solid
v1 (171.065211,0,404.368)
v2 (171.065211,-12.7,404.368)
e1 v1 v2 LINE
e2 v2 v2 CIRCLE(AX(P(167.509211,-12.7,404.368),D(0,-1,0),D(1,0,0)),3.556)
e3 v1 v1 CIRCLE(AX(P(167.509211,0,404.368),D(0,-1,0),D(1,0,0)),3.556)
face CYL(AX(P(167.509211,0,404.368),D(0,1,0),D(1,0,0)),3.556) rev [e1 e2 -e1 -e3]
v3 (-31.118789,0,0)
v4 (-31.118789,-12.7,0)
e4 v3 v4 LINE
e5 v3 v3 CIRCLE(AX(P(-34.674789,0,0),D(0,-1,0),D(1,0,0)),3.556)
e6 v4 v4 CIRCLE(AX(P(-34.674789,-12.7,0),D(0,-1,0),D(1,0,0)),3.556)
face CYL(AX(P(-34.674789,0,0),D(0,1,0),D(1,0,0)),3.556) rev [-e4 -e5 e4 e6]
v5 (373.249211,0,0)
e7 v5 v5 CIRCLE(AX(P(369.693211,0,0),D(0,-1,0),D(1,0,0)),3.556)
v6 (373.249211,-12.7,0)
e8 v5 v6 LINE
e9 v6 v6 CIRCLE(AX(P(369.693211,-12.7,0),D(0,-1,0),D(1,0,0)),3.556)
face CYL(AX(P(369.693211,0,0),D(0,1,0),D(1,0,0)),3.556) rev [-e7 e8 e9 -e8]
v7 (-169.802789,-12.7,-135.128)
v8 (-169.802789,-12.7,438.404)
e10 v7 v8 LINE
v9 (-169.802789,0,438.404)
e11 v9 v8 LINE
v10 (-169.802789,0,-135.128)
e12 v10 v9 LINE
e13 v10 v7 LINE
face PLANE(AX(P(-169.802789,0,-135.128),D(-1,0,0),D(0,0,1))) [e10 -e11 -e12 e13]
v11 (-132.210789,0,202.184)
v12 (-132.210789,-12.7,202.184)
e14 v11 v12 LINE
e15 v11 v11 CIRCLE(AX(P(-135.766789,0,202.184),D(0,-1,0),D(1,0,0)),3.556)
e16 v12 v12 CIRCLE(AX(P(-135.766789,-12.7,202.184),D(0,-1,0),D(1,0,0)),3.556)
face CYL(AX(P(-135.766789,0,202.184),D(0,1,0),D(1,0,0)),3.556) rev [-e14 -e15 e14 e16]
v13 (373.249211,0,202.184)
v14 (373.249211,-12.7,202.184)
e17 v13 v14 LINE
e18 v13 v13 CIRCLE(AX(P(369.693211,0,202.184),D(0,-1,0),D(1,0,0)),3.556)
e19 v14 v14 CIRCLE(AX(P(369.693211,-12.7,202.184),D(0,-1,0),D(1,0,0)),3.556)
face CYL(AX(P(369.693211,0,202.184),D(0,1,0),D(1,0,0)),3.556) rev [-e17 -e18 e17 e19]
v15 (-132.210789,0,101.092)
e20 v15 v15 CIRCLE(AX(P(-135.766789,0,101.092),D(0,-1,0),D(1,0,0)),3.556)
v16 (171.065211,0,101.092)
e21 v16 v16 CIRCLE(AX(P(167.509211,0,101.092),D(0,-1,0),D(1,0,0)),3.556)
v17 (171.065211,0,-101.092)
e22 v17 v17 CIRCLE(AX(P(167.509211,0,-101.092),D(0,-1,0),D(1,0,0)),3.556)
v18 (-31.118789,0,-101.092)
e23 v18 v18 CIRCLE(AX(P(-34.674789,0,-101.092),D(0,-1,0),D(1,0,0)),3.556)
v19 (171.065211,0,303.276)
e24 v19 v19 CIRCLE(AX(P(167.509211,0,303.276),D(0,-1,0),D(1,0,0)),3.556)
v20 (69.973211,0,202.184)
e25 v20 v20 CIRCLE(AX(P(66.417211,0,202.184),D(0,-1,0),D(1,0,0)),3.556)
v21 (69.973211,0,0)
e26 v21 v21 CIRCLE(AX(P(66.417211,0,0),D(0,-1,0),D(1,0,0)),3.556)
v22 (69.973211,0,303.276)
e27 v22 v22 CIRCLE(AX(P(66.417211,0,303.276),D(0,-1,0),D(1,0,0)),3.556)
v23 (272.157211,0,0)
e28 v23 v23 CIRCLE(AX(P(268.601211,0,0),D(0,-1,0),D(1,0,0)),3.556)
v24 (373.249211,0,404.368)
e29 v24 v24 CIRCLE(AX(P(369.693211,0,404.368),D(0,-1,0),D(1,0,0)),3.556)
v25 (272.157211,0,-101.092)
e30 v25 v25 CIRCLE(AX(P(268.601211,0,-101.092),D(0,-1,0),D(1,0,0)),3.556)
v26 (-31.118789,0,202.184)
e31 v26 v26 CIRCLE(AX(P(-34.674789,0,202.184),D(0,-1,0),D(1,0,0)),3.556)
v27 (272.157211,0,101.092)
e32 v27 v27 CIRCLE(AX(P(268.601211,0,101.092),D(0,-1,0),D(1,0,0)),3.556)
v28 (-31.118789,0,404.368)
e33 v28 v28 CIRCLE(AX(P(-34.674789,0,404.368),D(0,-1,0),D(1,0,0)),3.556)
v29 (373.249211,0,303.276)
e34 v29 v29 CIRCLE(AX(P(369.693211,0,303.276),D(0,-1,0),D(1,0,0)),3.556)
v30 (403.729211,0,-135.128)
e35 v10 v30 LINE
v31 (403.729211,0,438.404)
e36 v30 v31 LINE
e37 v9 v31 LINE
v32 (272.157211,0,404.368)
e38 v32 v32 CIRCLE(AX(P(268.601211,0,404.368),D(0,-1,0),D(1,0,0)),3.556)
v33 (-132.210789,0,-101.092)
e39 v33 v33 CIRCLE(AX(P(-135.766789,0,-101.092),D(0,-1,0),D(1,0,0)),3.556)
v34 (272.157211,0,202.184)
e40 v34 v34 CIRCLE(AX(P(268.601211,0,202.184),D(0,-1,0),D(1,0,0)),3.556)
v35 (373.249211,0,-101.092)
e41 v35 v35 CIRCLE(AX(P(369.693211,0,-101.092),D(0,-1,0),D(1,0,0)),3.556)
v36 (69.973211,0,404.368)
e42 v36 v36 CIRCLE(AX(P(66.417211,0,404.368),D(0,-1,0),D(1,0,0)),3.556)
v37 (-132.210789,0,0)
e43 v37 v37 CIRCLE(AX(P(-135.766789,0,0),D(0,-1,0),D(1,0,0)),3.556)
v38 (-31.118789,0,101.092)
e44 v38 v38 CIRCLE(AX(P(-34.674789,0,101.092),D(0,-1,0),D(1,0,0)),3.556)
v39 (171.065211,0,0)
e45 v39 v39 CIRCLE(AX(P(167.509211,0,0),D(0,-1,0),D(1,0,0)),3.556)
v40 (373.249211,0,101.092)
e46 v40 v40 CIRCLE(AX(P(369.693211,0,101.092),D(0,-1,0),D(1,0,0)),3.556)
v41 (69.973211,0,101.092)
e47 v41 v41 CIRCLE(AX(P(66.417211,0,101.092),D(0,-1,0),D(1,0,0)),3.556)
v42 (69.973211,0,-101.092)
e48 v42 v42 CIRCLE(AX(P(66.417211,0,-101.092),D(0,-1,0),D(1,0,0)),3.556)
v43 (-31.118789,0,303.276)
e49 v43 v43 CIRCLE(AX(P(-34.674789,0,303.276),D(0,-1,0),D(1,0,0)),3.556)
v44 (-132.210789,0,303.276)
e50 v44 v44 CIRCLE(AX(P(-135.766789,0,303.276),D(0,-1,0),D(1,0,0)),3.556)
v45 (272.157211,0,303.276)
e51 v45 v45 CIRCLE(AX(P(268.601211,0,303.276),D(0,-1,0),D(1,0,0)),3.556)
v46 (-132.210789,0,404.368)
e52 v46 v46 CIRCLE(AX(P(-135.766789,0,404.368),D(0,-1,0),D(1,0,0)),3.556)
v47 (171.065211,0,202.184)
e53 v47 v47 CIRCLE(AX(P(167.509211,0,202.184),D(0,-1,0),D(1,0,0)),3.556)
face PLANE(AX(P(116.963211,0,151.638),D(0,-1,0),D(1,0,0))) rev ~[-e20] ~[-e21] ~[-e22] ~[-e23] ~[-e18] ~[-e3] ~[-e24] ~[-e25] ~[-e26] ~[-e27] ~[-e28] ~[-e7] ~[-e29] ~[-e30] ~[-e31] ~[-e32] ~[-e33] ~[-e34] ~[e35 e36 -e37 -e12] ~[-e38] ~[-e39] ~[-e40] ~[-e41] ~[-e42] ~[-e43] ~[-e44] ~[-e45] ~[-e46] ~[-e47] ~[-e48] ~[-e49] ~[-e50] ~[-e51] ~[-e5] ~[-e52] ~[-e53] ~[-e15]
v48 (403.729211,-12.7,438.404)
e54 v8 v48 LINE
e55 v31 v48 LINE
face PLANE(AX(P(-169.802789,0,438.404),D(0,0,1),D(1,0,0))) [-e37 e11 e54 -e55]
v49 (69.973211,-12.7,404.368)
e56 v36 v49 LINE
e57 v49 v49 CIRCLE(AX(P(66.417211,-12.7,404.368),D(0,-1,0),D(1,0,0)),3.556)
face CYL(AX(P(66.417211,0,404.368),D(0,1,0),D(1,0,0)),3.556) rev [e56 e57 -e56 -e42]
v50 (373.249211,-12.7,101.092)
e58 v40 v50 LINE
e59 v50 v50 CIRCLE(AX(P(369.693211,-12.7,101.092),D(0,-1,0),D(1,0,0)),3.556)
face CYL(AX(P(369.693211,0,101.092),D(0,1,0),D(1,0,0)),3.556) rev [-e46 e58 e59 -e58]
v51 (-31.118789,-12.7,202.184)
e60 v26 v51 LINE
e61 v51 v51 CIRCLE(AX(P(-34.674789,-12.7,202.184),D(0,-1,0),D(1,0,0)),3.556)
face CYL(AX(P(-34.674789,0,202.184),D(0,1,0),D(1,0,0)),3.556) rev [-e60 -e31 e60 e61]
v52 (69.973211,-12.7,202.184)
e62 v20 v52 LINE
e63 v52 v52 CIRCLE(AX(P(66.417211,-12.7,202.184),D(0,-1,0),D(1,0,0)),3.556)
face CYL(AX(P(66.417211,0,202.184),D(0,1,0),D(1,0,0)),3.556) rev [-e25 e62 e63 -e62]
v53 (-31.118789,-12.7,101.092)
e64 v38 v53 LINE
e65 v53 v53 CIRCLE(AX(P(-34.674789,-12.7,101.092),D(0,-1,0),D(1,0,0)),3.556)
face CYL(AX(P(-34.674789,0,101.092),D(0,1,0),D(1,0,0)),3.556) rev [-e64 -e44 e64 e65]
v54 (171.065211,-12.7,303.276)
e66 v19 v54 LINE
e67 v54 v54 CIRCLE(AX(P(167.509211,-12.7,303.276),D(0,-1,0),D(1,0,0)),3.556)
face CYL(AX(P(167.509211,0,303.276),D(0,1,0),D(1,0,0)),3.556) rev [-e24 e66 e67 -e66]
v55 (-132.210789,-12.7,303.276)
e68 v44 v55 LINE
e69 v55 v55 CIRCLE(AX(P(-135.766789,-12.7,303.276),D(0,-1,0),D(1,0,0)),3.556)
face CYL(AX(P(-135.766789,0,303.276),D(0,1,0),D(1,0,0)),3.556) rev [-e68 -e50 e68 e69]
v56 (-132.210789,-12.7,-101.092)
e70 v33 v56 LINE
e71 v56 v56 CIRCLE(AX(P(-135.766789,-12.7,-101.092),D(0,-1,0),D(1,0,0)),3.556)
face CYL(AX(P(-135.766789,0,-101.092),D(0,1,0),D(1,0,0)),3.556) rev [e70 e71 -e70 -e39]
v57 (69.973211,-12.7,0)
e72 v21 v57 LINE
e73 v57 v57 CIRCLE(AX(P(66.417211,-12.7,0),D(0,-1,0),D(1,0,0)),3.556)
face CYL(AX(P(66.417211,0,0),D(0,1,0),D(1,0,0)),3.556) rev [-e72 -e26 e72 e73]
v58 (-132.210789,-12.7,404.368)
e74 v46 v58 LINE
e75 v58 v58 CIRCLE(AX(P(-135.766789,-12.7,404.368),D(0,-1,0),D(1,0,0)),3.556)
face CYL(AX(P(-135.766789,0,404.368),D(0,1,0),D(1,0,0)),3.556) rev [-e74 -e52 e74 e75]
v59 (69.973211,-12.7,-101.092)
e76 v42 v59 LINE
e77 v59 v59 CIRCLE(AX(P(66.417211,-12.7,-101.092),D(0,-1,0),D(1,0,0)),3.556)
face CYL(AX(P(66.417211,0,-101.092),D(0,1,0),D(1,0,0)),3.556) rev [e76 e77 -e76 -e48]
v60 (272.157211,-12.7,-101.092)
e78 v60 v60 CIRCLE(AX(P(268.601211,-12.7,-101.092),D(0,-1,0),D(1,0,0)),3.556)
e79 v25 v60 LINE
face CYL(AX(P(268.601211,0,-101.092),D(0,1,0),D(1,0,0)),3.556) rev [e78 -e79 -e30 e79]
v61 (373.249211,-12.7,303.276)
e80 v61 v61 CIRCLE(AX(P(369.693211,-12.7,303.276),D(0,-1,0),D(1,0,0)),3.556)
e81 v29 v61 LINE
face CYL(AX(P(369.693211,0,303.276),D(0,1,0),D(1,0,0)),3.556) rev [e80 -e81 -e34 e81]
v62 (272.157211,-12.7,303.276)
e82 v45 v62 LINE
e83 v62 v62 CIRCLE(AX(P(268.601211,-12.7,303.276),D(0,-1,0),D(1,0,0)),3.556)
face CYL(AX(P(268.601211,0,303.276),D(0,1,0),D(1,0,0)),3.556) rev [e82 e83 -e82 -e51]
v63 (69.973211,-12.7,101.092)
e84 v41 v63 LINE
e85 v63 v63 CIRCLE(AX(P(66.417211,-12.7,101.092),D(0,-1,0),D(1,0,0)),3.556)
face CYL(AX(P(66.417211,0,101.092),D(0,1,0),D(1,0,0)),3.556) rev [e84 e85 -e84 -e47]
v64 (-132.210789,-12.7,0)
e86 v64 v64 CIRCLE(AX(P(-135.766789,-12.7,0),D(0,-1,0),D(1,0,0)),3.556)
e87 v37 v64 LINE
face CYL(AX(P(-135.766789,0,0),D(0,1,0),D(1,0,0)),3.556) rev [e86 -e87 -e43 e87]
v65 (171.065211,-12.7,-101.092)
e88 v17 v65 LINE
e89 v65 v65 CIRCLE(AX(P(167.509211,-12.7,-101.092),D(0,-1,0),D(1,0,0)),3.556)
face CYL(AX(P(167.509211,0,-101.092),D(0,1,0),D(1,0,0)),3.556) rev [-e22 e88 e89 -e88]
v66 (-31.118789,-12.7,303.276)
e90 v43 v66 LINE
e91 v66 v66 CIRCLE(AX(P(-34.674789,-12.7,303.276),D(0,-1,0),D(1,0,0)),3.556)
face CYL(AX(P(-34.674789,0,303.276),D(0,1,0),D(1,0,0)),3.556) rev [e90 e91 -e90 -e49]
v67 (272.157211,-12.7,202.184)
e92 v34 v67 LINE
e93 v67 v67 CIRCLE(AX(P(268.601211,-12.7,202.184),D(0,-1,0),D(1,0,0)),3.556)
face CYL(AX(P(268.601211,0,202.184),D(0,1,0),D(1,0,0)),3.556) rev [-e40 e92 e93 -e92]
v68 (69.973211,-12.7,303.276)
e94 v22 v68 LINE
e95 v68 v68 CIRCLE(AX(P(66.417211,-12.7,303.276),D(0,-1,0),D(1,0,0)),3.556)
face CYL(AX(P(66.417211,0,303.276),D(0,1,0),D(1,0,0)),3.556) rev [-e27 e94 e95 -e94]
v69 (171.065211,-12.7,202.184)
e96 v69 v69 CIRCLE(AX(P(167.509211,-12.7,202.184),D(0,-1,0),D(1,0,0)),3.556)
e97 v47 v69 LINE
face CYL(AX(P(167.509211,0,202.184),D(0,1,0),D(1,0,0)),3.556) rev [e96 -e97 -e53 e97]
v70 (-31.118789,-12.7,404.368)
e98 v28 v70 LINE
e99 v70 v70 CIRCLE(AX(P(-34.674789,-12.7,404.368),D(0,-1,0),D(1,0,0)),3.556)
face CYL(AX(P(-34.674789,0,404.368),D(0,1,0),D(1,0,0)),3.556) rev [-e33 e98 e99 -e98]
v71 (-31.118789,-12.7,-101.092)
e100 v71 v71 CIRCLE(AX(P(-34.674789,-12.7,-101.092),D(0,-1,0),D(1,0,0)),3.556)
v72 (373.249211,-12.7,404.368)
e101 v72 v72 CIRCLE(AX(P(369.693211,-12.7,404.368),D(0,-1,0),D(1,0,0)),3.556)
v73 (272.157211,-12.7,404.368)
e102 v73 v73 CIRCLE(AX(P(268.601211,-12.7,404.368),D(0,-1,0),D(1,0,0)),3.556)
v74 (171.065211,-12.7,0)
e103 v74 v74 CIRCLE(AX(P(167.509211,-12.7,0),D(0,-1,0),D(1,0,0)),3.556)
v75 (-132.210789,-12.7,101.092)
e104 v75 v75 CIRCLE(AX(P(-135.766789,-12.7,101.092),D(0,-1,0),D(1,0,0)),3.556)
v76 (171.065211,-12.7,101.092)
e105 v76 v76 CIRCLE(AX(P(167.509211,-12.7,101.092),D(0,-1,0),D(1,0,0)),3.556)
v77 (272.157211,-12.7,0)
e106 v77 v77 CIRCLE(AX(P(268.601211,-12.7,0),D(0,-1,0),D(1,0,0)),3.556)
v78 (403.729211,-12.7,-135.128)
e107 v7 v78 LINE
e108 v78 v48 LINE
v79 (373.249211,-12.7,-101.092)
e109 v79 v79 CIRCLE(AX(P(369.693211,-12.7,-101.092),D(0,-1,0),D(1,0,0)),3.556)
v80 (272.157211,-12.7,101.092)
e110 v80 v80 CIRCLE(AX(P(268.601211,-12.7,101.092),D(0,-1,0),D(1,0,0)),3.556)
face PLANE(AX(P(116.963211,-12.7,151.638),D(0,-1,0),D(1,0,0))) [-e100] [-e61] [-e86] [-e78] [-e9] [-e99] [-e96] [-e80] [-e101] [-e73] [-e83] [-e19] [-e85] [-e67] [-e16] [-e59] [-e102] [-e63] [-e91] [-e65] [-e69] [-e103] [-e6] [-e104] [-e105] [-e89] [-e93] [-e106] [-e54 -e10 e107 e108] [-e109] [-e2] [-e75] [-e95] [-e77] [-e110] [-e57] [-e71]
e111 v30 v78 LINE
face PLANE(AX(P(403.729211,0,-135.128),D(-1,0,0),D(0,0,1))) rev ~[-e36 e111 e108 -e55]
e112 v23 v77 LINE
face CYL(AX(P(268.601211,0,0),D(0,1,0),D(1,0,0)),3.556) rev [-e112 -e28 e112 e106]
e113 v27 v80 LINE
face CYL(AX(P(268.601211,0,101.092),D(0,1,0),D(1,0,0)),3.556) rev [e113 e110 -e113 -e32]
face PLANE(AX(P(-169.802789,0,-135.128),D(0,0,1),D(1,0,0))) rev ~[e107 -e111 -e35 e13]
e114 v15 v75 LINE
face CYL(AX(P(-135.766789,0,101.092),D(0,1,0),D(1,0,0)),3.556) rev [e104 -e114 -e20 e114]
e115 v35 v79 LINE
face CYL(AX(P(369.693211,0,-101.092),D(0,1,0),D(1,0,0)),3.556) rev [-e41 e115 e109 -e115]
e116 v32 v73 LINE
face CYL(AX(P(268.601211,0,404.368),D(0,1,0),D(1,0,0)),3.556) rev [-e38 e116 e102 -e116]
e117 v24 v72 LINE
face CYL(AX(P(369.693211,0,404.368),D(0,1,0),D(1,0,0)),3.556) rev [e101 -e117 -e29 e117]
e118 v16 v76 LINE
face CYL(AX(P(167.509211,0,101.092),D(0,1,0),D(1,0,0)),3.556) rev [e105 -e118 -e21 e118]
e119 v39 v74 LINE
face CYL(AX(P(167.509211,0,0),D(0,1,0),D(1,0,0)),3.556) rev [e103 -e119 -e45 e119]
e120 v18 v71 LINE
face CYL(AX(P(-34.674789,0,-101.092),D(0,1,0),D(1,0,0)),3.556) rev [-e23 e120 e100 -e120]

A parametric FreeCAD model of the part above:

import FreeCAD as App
import Part
import Sketcher
Q = App.Units.Quantity

doc = App.newDocument("Part")
body = doc.addObject("PartDesign::Body", "Body")

# Sketch on XZ plane
sketch1 = body.newObject("Sketcher::SketchObject", "Sketch")
sketch1.AttachmentSupport = (doc.getObject("XZ_Plane"), [""])
sketch1.MapMode = "FlatFace"
sketch1.addGeometry([
    Part.LineSegment(App.Vector(-169.8, 438.4, 0), App.Vector(-169.8, -135.1, 0)),  # 0
    Part.LineSegment(App.Vector(-169.8, -135.1, 0), App.Vector(403.7, -135.1, 0)),  # 1
    Part.LineSegment(App.Vector(403.7, -135.1, 0), App.Vector(403.7, 438.4, 0)),  # 2
    Part.LineSegment(App.Vector(403.7, 438.4, 0), App.Vector(-169.8, 438.4, 0)),  # 3
    Part.Circle(App.Vector(-135.8, -101.1, 0), App.Vector(0, 0, 1), 3.6),  # 4
    Part.Circle(App.Vector(-34.7, -101.1, 0), App.Vector(0, 0, 1), 3.6),  # 5
    Part.Circle(App.Vector(-135.8, 0, 0), App.Vector(0, 0, 1), 3.6),  # 6
    Part.Circle(App.Vector(-34.7, 0, 0), App.Vector(0, 0, 1), 3.6),  # 7
    Part.Circle(App.Vector(66.4, -101.1, 0), App.Vector(0, 0, 1), 3.6),  # 8
    Part.Circle(App.Vector(66.4, 0, 0), App.Vector(0, 0, 1), 3.6),  # 9
    Part.Circle(App.Vector(-135.8, 101.1, 0), App.Vector(0, 0, 1), 3.6),  # 10
    Part.Circle(App.Vector(-34.7, 101.1, 0), App.Vector(0, 0, 1), 3.6),  # 11
    Part.Circle(App.Vector(66.4, 101.1, 0), App.Vector(0, 0, 1), 3.6),  # 12
    Part.Circle(App.Vector(167.5, -101.1, 0), App.Vector(0, 0, 1), 3.6),  # 13
    Part.Circle(App.Vector(167.5, 0, 0), App.Vector(0, 0, 1), 3.6),  # 14
    Part.Circle(App.Vector(268.6, -101.1, 0), App.Vector(0, 0, 1), 3.6),  # 15
    Part.Circle(App.Vector(369.7, -101.1, 0), App.Vector(0, 0, 1), 3.6),  # 16
    Part.Circle(App.Vector(268.6, 0, 0), App.Vector(0, 0, 1), 3.6),  # 17
    Part.Circle(App.Vector(369.7, 0, 0), App.Vector(0, 0, 1), 3.6),  # 18
    Part.Circle(App.Vector(167.5, 101.1, 0), App.Vector(0, 0, 1), 3.6),  # 19
    Part.Circle(App.Vector(268.6, 101.1, 0), App.Vector(0, 0, 1), 3.6),  # 20
    Part.Circle(App.Vector(369.7, 101.1, 0), App.Vector(0, 0, 1), 3.6),  # 21
    Part.Circle(App.Vector(-135.8, 202.2, 0), App.Vector(0, 0, 1), 3.6),  # 22
    Part.Circle(App.Vector(-34.7, 202.2, 0), App.Vector(0, 0, 1), 3.6),  # 23
    Part.Circle(App.Vector(66.4, 202.2, 0), App.Vector(0, 0, 1), 3.6),  # 24
    Part.Circle(App.Vector(-135.8, 303.3, 0), App.Vector(0, 0, 1), 3.6),  # 25
    Part.Circle(App.Vector(-34.7, 303.3, 0), App.Vector(0, 0, 1), 3.6),  # 26
    Part.Circle(App.Vector(-135.8, 404.4, 0), App.Vector(0, 0, 1), 3.6),  # 27
    Part.Circle(App.Vector(-34.7, 404.4, 0), App.Vector(0, 0, 1), 3.6),  # 28
    Part.Circle(App.Vector(66.4, 303.3, 0), App.Vector(0, 0, 1), 3.6),  # 29
    Part.Circle(App.Vector(66.4, 404.4, 0), App.Vector(0, 0, 1), 3.6),  # 30
    Part.Circle(App.Vector(167.5, 202.2, 0), App.Vector(0, 0, 1), 3.6),  # 31
    Part.Circle(App.Vector(268.6, 202.2, 0), App.Vector(0, 0, 1), 3.6),  # 32
    Part.Circle(App.Vector(369.7, 202.2, 0), App.Vector(0, 0, 1), 3.6),  # 33
    Part.Circle(App.Vector(167.5, 303.3, 0), App.Vector(0, 0, 1), 3.6),  # 34
    Part.Circle(App.Vector(167.5, 404.4, 0), App.Vector(0, 0, 1), 3.6),  # 35
    Part.Circle(App.Vector(268.6, 303.3, 0), App.Vector(0, 0, 1), 3.6),  # 36
    Part.Circle(App.Vector(369.7, 303.3, 0), App.Vector(0, 0, 1), 3.6),  # 37
    Part.Circle(App.Vector(268.6, 404.4, 0), App.Vector(0, 0, 1), 3.6),  # 38
    Part.Circle(App.Vector(369.7, 404.4, 0), App.Vector(0, 0, 1), 3.6),  # 39
], False)
sketch1.addConstraint([
    Sketcher.Constraint("Coincident", 0, 2, 1, 1),
    Sketcher.Constraint("Coincident", 1, 2, 2, 1),
    Sketcher.Constraint("Coincident", 2, 2, 3, 1),
    Sketcher.Constraint("Coincident", 3, 2, 0, 1),
    Sketcher.Constraint("Vertical", 0),
    Sketcher.Constraint("Horizontal", 1),
    Sketcher.Constraint("Vertical", 2),
    Sketcher.Constraint("Horizontal", 3),
    Sketcher.Constraint("Equal", 4, 5),
    Sketcher.Constraint("Equal", 5, 6),
    Sketcher.Constraint("Equal", 6, 7),
    Sketcher.Constraint("Equal", 7, 8),
    Sketcher.Constraint("Equal", 8, 9),
    Sketcher.Constraint("Equal", 9, 10),
    Sketcher.Constraint("Equal", 10, 11),
    Sketcher.Constraint("Equal", 11, 12),
    Sketcher.Constraint("Equal", 12, 13),
    Sketcher.Constraint("Equal", 13, 14),
    Sketcher.Constraint("Equal", 14, 15),
    Sketcher.Constraint("Equal", 15, 16),
    Sketcher.Constraint("Equal", 16, 17),
    Sketcher.Constraint("Equal", 17, 18),
    Sketcher.Constraint("Equal", 18, 19),
    Sketcher.Constraint("Equal", 19, 20),
    Sketcher.Constraint("Equal", 20, 21),
    Sketcher.Constraint("Equal", 21, 22),
    Sketcher.Constraint("Equal", 22, 23),
    Sketcher.Constraint("Equal", 23, 24),
    Sketcher.Constraint("Equal", 24, 25),
    Sketcher.Constraint("Equal", 25, 26),
    Sketcher.Constraint("Equal", 26, 27),
    Sketcher.Constraint("Equal", 27, 28),
    Sketcher.Constraint("Equal", 28, 29),
    Sketcher.Constraint("Equal", 29, 30),
    Sketcher.Constraint("Equal", 30, 31),
    Sketcher.Constraint("Equal", 31, 32),
    Sketcher.Constraint("Equal", 32, 33),
    Sketcher.Constraint("Equal", 33, 34),
    Sketcher.Constraint("Equal", 34, 35),
    Sketcher.Constraint("Equal", 35, 36),
    Sketcher.Constraint("Equal", 36, 37),
    Sketcher.Constraint("Equal", 37, 38),
    Sketcher.Constraint("Equal", 38, 39),
    Sketcher.Constraint("Symmetric", 4, 3, 10, 3, -1),
    Sketcher.Constraint("Symmetric", 5, 3, 11, 3, -1),
    Sketcher.Constraint("Symmetric", 8, 3, 12, 3, -1),
    Sketcher.Constraint("Symmetric", 13, 3, 19, 3, -1),
    Sketcher.Constraint("Symmetric", 15, 3, 20, 3, -1),
    Sketcher.Constraint("Symmetric", 16, 3, 21, 3, -1),
    Sketcher.Constraint("PointOnObject", 6, 3, -1),
    Sketcher.Constraint("PointOnObject", 7, 3, -1),
    Sketcher.Constraint("PointOnObject", 9, 3, -1),
    Sketcher.Constraint("PointOnObject", 14, 3, -1),
    Sketcher.Constraint("PointOnObject", 17, 3, -1),
    Sketcher.Constraint("PointOnObject", 18, 3, -1),
    Sketcher.Constraint("Horizontal", 4, 3, 5, 3),
    Sketcher.Constraint("Horizontal", 5, 3, 8, 3),
    Sketcher.Constraint("Horizontal", 8, 3, 13, 3),
    Sketcher.Constraint("Horizontal", 13, 3, 15, 3),
    Sketcher.Constraint("Horizontal", 15, 3, 16, 3),
    Sketcher.Constraint("Horizontal", 22, 3, 23, 3),
    Sketcher.Constraint("Horizontal", 23, 3, 24, 3),
    Sketcher.Constraint("Horizontal", 25, 3, 26, 3),
    Sketcher.Constraint("Horizontal", 27, 3, 28, 3),
    Sketcher.Constraint("Horizontal", 26, 3, 29, 3),
    Sketcher.Constraint("Horizontal", 28, 3, 30, 3),
    Sketcher.Constraint("Horizontal", 24, 3, 31, 3),
    Sketcher.Constraint("Horizontal", 31, 3, 32, 3),
    Sketcher.Constraint("Horizontal", 32, 3, 33, 3),
    Sketcher.Constraint("Horizontal", 29, 3, 34, 3),
    Sketcher.Constraint("Horizontal", 30, 3, 35, 3),
    Sketcher.Constraint("Horizontal", 34, 3, 36, 3),
    Sketcher.Constraint("Horizontal", 36, 3, 37, 3),
    Sketcher.Constraint("Horizontal", 35, 3, 38, 3),
    Sketcher.Constraint("Horizontal", 38, 3, 39, 3),
    Sketcher.Constraint("Vertical", 4, 3, 6, 3),
    Sketcher.Constraint("Vertical", 5, 3, 7, 3),
    Sketcher.Constraint("Vertical", 8, 3, 9, 3),
    Sketcher.Constraint("Vertical", 13, 3, 14, 3),
    Sketcher.Constraint("Vertical", 15, 3, 17, 3),
    Sketcher.Constraint("Vertical", 16, 3, 18, 3),
    Sketcher.Constraint("Vertical", 10, 3, 22, 3),
    Sketcher.Constraint("Vertical", 11, 3, 23, 3),
    Sketcher.Constraint("Vertical", 12, 3, 24, 3),
    Sketcher.Constraint("Vertical", 22, 3, 25, 3),
    Sketcher.Constraint("Vertical", 23, 3, 26, 3),
    Sketcher.Constraint("Vertical", 25, 3, 27, 3),
    Sketcher.Constraint("Vertical", 26, 3, 28, 3),
    Sketcher.Constraint("Vertical", 24, 3, 29, 3),
    Sketcher.Constraint("Vertical", 29, 3, 30, 3),
    Sketcher.Constraint("Vertical", 19, 3, 31, 3),
    Sketcher.Constraint("Vertical", 20, 3, 32, 3),
    Sketcher.Constraint("Vertical", 21, 3, 33, 3),
    Sketcher.Constraint("Vertical", 31, 3, 34, 3),
    Sketcher.Constraint("Vertical", 34, 3, 35, 3),
    Sketcher.Constraint("Vertical", 32, 3, 36, 3),
    Sketcher.Constraint("Vertical", 33, 3, 37, 3),
    Sketcher.Constraint("Vertical", 36, 3, 38, 3),
    Sketcher.Constraint("Vertical", 37, 3, 39, 3),
    Sketcher.Constraint("Equal", 3, 0),
    Sketcher.Constraint("Diameter", 4, Q("0.28 in")),
    Sketcher.Constraint("DistanceX", 1, 1, 1, 2, Q("22.58 in")),
    Sketcher.Constraint("DistanceX", 0, 2, 8, 3, Q("9.3 in")),
    Sketcher.Constraint("DistanceY", 1, 2, 21, 3, Q("9.3 in")),
    Sketcher.Constraint("DistanceY", 33, 3, 2, 2, Q("9.3 in")),
    Sketcher.Constraint("DistanceY", 4, 3, -1, 1, Q("3.98 in")),
    Sketcher.Constraint("DistanceY", -1, 1, 25, 3, Q("11.94 in")),
    Sketcher.Constraint("DistanceY", -1, 1, 27, 3, Q("15.92 in")),
    Sketcher.Constraint("DistanceX", 4, 3, 5, 3, Q("3.98 in")),
    Sketcher.Constraint("DistanceX", 5, 3, 8, 3, Q("3.98 in")),
    Sketcher.Constraint("DistanceX", 8, 3, 13, 3, Q("3.98 in")),
    Sketcher.Constraint("DistanceX", 13, 3, 15, 3, Q("3.98 in")),
    Sketcher.Constraint("DistanceX", 15, 3, 16, 3, Q("3.98 in")),
    Sketcher.Constraint("DistanceX", 4, 3, -1, 1, Q("135.766789 mm")),
])
pad1 = body.newObject("PartDesign::Pad", "Pad")
pad1.Profile = sketch1
pad1.Length = Q("0.5 in")

doc.recompute()
